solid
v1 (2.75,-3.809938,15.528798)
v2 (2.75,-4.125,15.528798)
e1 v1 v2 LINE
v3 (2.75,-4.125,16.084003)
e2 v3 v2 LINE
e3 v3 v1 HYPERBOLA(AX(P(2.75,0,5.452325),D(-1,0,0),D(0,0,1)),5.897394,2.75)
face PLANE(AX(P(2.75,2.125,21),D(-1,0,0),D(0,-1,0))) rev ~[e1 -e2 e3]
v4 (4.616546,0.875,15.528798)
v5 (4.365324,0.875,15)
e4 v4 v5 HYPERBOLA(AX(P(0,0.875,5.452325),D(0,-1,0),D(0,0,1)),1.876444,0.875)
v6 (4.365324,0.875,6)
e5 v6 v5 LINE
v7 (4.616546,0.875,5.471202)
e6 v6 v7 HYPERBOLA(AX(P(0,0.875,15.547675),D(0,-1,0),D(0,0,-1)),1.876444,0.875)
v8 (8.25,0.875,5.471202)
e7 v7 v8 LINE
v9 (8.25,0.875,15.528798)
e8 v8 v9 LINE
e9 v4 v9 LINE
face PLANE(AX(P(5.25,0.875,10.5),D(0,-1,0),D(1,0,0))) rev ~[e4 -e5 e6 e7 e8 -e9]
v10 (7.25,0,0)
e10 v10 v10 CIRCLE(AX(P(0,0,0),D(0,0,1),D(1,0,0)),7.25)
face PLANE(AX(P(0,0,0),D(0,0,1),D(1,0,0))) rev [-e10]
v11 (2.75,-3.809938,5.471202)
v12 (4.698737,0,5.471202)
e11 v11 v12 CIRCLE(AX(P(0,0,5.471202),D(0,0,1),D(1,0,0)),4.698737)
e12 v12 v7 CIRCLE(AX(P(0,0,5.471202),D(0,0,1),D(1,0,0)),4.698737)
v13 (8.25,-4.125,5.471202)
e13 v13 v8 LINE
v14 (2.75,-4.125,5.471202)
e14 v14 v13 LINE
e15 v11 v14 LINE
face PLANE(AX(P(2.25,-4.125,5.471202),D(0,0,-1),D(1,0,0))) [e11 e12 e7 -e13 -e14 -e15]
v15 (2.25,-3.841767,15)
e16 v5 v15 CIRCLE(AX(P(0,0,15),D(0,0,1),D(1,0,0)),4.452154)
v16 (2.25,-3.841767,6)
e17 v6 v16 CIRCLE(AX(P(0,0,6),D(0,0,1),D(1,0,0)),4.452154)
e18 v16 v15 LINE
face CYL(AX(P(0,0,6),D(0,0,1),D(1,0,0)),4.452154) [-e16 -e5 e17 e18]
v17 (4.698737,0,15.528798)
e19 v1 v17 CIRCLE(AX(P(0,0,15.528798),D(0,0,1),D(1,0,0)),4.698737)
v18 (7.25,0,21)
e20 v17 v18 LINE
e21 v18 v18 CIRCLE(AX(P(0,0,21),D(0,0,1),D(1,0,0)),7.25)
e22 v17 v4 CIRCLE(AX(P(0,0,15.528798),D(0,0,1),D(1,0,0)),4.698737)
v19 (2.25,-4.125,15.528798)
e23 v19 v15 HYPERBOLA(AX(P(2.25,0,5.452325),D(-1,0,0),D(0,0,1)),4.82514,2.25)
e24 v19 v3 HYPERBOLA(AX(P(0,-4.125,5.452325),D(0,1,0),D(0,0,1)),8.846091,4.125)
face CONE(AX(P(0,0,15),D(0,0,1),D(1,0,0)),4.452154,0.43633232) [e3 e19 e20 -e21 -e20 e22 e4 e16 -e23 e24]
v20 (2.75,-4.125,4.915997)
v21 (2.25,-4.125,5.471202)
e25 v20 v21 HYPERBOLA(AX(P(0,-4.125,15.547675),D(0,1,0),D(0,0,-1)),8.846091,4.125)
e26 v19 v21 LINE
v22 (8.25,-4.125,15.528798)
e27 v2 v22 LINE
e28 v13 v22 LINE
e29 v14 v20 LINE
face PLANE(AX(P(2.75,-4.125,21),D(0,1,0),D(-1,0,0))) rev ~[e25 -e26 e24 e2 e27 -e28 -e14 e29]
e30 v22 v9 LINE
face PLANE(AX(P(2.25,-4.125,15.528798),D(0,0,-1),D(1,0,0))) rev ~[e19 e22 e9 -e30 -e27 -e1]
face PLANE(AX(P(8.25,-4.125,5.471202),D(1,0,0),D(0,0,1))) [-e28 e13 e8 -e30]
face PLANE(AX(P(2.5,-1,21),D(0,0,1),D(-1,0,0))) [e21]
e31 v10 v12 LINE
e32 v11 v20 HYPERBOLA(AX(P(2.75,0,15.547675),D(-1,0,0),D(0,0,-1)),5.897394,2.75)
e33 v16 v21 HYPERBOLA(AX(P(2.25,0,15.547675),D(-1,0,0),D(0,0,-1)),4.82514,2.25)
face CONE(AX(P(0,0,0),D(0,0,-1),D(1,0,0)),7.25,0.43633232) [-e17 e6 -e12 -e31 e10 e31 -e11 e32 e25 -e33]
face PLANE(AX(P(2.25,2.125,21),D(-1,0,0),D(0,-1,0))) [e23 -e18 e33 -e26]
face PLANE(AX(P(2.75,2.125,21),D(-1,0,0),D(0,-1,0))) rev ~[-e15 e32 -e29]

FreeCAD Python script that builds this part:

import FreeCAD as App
import Part
import Sketcher
Q = App.Units.Quantity


def add_polygon(sketch, points):
    """Adds a closed chain of lines whose ends are joined by coincident constraints."""
    first, n = sketch.GeometryCount, len(points)
    for a, b in zip(points, points[1:] + points[:1]):
        sketch.addGeometry(Part.LineSegment(App.Vector(*a, 0), App.Vector(*b, 0)), False)
    for i in range(n):
        sketch.addConstraint(Sketcher.Constraint("Coincident", first + i, 2, first + (i + 1) % n, 1))

doc = App.newDocument("Part")
body = doc.addObject("PartDesign::Body", "Body")

# Sketch on XZ plane
sketch1 = body.newObject("Sketcher::SketchObject", "Sketch")
sketch1.AttachmentSupport = (doc.getObject("XZ_Plane"), [""])
sketch1.MapMode = "FlatFace"
add_polygon(sketch1, [(0, 0), (7.25, 0), (4.452154, 6), (4.452154, 15), (7.25, 21), (0, 21)])  # lines 0-5
sketch1.addConstraint([
    Sketcher.Constraint("Horizontal", 0),
    Sketcher.Constraint("Vertical", 2),
    Sketcher.Constraint("Horizontal", 4),
    Sketcher.Constraint("Vertical", 5),
    Sketcher.Constraint("Coincident", 5, 2, -1, 1),
    Sketcher.Constraint("Vertical", 0, 2, 3, 2),
    Sketcher.Constraint("Equal", 1, 3),
    Sketcher.Constraint("DistanceY", 2, 1, 2, 2, 9.0),
    Sketcher.Constraint("DistanceY", 5, 2, 5, 1, 21.0),
    Sketcher.Constraint("Angle", 1, Q("115 deg")),
    Sketcher.Constraint("DistanceX", 0, 1, 0, 2, 7.25),
])
revolution = body.newObject("PartDesign::Revolution", "Revolution")
revolution.Profile = sketch1
revolution.ReferenceAxis = (sketch1, ["V_Axis"])
revolution.Angle = 360

# Sketch on XY plane
sketch2 = body.newObject("Sketcher::SketchObject", "Sketch001")
sketch2.AttachmentSupport = (doc.getObject("XY_Plane"), [""])
sketch2.MapMode = "FlatFace"
sketch2.AttachmentOffset = App.Placement(App.Vector(0, 0, 21), App.Rotation())
add_polygon(sketch2, [(2.75, -4.125), (2.75, 2.125), (2.25, 2.125), (2.25, -4.125)])  # lines 0-3
sketch2.addConstraint([
    Sketcher.Constraint("Vertical", 0),
    Sketcher.Constraint("Horizontal", 1),
    Sketcher.Constraint("Vertical", 2),
    Sketcher.Constraint("Horizontal", 3),
    Sketcher.Constraint("DistanceX", 1, 2, 1, 1, 0.5),
    Sketcher.Constraint("DistanceY", 0, 1, 0, 2, 6.25),
    Sketcher.Constraint("DistanceX", -1, 1, 0, 2, 2.75),
    Sketcher.Constraint("DistanceY", -1, 1, 0, 2, 2.125),
])
pad1 = body.newObject("PartDesign::Pad", "Pad")
pad1.Profile = sketch2
pad1.Length = 20
pad1.Reversed = True

# Sketch on XZ plane
sketch3 = body.newObject("Sketcher::SketchObject", "Sketch002")
sketch3.AttachmentSupport = (doc.getObject("XZ_Plane"), [""])
sketch3.MapMode = "FlatFace"
sketch3.AttachmentOffset = App.Placement(App.Vector(0, 0, 4.125), App.Rotation())
add_polygon(sketch3, [(2.25, 15.528798), (2.25, 5.471202), (8.25, 5.471202), (8.25, 15.528798)])  # lines 0-3
sketch3.addConstraint([
    Sketcher.Constraint("Vertical", 0),
    Sketcher.Constraint("Horizontal", 1),
    Sketcher.Constraint("Vertical", 2),
    Sketcher.Constraint("Horizontal", 3),
    Sketcher.Constraint("DistanceX", 1, 1, 1, 2, 6.0),
    Sketcher.Constraint("DistanceX", -1, 1, 0, 2, 2.25),
    Sketcher.Constraint("DistanceY", 0, 2, 0, 1, 10.057596),
    Sketcher.Constraint("DistanceY", -1, 1, 0, 2, 5.471202),
])
pad2 = body.newObject("PartDesign::Pad", "Pad001")
pad2.Profile = sketch3
pad2.Length = 5
pad2.Reversed = True

doc.recompute()
